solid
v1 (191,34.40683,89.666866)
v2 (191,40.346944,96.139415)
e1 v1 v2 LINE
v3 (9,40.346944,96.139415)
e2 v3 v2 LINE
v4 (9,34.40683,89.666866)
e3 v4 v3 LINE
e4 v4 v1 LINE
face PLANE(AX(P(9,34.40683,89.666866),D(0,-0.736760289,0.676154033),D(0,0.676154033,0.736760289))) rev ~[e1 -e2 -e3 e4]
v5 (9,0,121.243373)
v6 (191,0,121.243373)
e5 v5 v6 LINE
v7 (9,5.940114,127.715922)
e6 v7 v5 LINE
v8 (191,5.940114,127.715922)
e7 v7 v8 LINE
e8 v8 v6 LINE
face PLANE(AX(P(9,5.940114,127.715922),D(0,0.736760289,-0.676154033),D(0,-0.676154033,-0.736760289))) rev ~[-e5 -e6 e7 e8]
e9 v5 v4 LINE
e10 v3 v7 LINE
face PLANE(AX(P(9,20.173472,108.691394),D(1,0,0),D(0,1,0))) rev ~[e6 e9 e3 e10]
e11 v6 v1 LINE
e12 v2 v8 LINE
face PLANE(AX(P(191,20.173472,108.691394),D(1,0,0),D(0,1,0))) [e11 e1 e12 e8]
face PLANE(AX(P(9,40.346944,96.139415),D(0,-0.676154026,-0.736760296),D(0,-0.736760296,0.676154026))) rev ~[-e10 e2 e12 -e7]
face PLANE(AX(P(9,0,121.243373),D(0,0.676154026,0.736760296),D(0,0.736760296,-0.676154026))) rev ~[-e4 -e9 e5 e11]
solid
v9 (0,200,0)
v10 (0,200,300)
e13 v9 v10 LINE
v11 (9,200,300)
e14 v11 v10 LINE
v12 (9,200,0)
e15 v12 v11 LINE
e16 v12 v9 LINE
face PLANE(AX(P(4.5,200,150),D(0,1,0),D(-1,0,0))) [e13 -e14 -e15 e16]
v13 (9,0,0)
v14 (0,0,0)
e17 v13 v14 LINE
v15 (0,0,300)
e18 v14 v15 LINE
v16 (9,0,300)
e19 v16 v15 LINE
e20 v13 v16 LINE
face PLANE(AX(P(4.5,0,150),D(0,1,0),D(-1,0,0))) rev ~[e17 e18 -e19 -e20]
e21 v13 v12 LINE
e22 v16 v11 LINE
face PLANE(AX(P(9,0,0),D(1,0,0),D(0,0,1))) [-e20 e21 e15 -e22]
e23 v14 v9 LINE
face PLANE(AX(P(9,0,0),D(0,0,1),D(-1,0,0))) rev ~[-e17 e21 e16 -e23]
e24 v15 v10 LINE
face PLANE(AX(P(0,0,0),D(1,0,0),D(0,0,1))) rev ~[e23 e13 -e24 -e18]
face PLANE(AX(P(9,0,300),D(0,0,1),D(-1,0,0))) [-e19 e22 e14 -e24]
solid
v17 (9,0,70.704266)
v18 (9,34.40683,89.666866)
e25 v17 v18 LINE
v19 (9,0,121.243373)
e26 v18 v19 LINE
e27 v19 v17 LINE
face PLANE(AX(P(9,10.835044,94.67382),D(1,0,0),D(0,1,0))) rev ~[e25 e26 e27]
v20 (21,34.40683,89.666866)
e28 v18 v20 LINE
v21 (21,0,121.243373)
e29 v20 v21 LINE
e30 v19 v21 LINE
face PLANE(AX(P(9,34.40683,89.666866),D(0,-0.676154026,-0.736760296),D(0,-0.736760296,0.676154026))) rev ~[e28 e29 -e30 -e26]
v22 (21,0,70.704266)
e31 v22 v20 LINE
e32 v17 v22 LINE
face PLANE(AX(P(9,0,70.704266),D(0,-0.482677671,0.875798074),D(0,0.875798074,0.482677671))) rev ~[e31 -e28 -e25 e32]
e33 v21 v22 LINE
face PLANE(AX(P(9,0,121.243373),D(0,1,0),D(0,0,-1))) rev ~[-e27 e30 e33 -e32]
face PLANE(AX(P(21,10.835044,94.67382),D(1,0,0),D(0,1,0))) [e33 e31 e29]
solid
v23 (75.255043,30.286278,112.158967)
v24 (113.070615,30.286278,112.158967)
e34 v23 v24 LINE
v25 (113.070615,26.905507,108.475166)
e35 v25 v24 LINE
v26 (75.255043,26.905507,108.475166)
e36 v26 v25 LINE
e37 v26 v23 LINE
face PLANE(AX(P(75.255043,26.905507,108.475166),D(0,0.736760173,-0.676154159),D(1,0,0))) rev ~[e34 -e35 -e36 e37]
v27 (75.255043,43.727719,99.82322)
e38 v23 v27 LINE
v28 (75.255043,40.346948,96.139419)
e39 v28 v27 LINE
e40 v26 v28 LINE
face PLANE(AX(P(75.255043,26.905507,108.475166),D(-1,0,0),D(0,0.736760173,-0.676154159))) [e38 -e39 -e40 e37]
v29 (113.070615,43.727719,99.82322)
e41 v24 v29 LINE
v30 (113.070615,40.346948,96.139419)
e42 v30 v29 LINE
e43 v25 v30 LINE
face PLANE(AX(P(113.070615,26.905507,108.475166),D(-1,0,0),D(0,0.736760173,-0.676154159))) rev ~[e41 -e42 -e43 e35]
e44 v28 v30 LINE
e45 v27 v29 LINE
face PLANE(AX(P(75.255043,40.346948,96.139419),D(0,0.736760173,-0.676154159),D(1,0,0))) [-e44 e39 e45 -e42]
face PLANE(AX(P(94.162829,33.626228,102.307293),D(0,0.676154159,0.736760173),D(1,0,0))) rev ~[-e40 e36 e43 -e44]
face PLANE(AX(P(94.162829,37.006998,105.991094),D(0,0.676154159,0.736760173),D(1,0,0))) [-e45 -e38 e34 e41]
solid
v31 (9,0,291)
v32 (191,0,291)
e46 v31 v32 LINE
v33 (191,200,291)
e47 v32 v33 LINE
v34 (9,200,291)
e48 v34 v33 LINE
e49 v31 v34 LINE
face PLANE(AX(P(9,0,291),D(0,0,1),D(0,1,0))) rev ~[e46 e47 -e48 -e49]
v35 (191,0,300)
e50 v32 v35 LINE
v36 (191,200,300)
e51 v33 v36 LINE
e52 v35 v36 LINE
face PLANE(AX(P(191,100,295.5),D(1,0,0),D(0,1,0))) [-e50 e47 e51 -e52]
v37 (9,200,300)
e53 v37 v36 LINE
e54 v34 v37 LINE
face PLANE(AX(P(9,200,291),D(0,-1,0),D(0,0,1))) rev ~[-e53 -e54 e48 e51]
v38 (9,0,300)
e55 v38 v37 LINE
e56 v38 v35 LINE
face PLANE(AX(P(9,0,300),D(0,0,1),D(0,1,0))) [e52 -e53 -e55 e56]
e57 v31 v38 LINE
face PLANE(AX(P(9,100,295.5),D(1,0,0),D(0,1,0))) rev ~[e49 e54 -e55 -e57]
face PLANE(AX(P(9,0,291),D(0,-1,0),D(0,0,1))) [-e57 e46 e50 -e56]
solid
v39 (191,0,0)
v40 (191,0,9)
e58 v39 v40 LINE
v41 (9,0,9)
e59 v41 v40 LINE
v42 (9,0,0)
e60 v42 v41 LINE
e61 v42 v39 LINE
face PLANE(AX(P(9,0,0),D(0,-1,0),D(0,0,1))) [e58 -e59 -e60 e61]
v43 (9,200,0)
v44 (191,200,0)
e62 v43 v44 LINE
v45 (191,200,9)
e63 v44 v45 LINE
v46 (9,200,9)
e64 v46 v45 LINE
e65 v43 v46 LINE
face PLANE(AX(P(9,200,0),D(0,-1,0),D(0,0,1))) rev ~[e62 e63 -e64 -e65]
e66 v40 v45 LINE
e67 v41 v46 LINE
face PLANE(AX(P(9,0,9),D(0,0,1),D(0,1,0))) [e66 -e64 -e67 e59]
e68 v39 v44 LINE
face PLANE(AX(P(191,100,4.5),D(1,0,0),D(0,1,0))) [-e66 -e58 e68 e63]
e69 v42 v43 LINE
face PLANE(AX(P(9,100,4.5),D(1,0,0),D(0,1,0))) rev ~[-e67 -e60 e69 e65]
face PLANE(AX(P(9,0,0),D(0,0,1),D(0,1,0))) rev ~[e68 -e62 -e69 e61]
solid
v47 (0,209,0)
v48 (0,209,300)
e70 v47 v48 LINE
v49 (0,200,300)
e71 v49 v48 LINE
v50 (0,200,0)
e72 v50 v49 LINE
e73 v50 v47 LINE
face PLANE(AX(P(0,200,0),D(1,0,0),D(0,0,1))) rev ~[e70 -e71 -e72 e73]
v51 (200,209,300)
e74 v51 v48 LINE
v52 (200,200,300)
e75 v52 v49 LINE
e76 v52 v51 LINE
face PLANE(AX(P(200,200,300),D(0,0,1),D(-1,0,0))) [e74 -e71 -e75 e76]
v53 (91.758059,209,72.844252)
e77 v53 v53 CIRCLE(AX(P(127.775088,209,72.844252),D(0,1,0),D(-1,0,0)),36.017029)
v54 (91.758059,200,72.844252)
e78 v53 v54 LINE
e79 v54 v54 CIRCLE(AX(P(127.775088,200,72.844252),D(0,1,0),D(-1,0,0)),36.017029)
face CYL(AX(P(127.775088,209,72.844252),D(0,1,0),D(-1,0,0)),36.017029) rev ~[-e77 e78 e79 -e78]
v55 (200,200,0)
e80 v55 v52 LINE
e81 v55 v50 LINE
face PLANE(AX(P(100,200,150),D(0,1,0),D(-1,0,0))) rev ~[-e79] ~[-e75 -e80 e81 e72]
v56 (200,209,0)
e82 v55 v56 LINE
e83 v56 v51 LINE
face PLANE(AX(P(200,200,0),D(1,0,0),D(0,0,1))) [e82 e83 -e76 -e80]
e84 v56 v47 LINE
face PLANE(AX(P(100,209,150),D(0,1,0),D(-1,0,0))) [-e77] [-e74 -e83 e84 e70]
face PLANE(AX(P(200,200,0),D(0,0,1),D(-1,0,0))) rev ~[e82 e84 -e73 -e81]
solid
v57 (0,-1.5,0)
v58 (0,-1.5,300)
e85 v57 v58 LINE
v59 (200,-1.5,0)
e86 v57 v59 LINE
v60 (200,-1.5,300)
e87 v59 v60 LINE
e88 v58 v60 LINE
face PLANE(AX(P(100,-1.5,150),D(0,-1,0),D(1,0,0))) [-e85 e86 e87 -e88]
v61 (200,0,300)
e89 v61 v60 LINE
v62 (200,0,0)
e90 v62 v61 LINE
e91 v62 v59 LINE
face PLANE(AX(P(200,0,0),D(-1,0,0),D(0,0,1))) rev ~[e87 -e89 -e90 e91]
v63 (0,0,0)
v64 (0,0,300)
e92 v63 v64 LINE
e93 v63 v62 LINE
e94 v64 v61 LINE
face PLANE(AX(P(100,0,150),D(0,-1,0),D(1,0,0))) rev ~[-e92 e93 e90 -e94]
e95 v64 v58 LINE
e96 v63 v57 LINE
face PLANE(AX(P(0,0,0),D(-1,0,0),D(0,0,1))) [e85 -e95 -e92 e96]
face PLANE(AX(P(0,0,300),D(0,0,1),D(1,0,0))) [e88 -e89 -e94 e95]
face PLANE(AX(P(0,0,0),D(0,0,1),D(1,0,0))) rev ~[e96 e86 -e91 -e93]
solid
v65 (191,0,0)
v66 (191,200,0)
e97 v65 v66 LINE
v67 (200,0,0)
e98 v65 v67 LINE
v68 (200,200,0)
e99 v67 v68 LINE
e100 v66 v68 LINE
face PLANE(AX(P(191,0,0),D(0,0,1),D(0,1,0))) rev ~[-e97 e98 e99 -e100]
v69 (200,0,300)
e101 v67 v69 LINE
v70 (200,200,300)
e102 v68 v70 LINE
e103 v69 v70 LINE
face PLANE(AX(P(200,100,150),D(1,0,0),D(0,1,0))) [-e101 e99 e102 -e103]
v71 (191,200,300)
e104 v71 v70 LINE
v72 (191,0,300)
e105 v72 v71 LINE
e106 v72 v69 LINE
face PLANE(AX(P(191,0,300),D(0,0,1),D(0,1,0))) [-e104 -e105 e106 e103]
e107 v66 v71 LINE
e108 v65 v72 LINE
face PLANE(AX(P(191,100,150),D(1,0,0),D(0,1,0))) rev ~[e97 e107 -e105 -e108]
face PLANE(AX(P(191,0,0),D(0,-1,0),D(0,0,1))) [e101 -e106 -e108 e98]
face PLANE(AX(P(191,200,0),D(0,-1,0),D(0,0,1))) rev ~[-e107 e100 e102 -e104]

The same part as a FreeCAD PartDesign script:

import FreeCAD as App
import Part
import Sketcher
Q = App.Units.Quantity


def add_polygon(sketch, points):
    """Adds a closed chain of lines whose ends are joined by coincident constraints."""
    first, n = sketch.GeometryCount, len(points)
    for a, b in zip(points, points[1:] + points[:1]):
        sketch.addGeometry(Part.LineSegment(App.Vector(*a, 0), App.Vector(*b, 0)), False)
    for i in range(n):
        sketch.addConstraint(Sketcher.Constraint("Coincident", first + i, 2, first + (i + 1) % n, 1))

doc = App.newDocument("Part")
body = doc.addObject("PartDesign::Body", "Body")

# Sketch on XZ plane
sketch1 = body.newObject("Sketcher::SketchObject", "Sketch")
sketch1.AttachmentSupport = (doc.getObject("XZ_Plane"), [""])
sketch1.MapMode = "FlatFace"
add_polygon(sketch1, [(0, 300), (0, 0), (200, 0), (200, 300)])  # lines 0-3
sketch1.addConstraint(Sketcher.Constraint("Vertical", 0))
sketch1.addConstraint(Sketcher.Constraint("Horizontal", 1))
sketch1.addConstraint(Sketcher.Constraint("Vertical", 2))
sketch1.addConstraint(Sketcher.Constraint("Horizontal", 3))
sketch1.addConstraint(Sketcher.Constraint("Coincident", 0, 2, -1, 1))
sketch1.addConstraint(Sketcher.Constraint("DistanceX", 1, 1, 1, 2, Q("200 mm")))
sketch1.addConstraint(Sketcher.Constraint("DistanceY", 0, 2, 0, 1, Q("300 mm")))
pad1 = body.newObject("PartDesign::Pad", "Pad")
pad1.Profile = sketch1
pad1.Length = 1.5
body2 = doc.addObject("PartDesign::Body", "Body001")

# Sketch on XZ plane
sketch2 = body2.newObject("Sketcher::SketchObject", "Sketch001")
sketch2.AttachmentSupport = (doc.getObject("XZ_Plane001"), [""])
sketch2.MapMode = "FlatFace"
add_polygon(sketch2, [(9, 300), (9, 0), (0, 0), (0, 300)])  # lines 0-3
sketch2.addConstraint(Sketcher.Constraint("Vertical", 0))
sketch2.addConstraint(Sketcher.Constraint("Horizontal", 1))
sketch2.addConstraint(Sketcher.Constraint("Vertical", 2))
sketch2.addConstraint(Sketcher.Constraint("Horizontal", 3))
sketch2.addConstraint(Sketcher.Constraint("Coincident", 1, 2, -1, 1))
sketch2.addConstraint(Sketcher.Constraint("DistanceX", 1, 2, 1, 1, Q("9 mm")))
sketch2.addConstraint(Sketcher.Constraint("DistanceY", 0, 2, 0, 1, Q("300 mm")))
pad2 = body2.newObject("PartDesign::Pad", "Pad001")
pad2.Profile = sketch2
pad2.Length = 200
pad2.Reversed = True
body3 = doc.addObject("PartDesign::Body", "Body002")

# Sketch on YZ plane
sketch3 = body3.newObject("Sketcher::SketchObject", "Sketch002")
sketch3.AttachmentSupport = (doc.getObject("YZ_Plane002"), [""])
sketch3.MapMode = "FlatFace"
sketch3.AttachmentOffset = App.Placement(App.Vector(0, 0, 9), App.Rotation())
add_polygon(sketch3, [(34, 90), (0, 121), (0, 71)])  # lines 0-2
sketch3.addConstraint(Sketcher.Constraint("Vertical", 1))
sketch3.addConstraint(Sketcher.Constraint("PointOnObject", 0, 2, -2))
sketch3.addConstraint(Sketcher.Constraint("DistanceY", 1, 2, 2, 2, Q("18.9626 mm")))
sketch3.addConstraint(Sketcher.Constraint("Distance", 0, Q("46.700169 mm")))
sketch3.addConstraint(Sketcher.Constraint("Distance", 2, Q("39.286259 mm")))
sketch3.addConstraint(Sketcher.Constraint("DistanceY", -1, 1, 0, 2, Q("121.243373 mm")))
pad3 = body3.newObject("PartDesign::Pad", "Pad002")
pad3.Profile = sketch3
pad3.Length = 12
body4 = doc.addObject("PartDesign::Body", "Body003")

# Sketch on YZ plane
sketch4 = body4.newObject("Sketcher::SketchObject", "Sketch003")
sketch4.AttachmentSupport = (doc.getObject("YZ_Plane003"), [""])
sketch4.MapMode = "FlatFace"
sketch4.AttachmentOffset = App.Placement(App.Vector(0, 0, 9), App.Rotation())
add_polygon(sketch4, [(0, 121), (34, 90), (40, 96), (6, 128)])  # lines 0-3
sketch4.addConstraint(Sketcher.Constraint("PointOnObject", 3, 2, -2))
sketch4.addConstraint(Sketcher.Constraint("Perpendicular", 0, 1))
sketch4.addConstraint(Sketcher.Constraint("Perpendicular", 1, 2))
sketch4.addConstraint(Sketcher.Constraint("Perpendicular", 2, 3))
sketch4.addConstraint(Sketcher.Constraint("Distance", 0, Q("46.700169 mm")))
sketch4.addConstraint(Sketcher.Constraint("Distance", 1, Q("8.785149 mm")))
sketch4.addConstraint(Sketcher.Constraint("DistanceX", -1, 1, 0, 2, Q("34.40683 mm")))
sketch4.addConstraint(Sketcher.Constraint("DistanceY", -1, 1, 0, 2, Q("89.666866 mm")))
pad4 = body4.newObject("PartDesign::Pad", "Pad003")
pad4.Profile = sketch4
pad4.Length = 182
body5 = doc.addObject("PartDesign::Body", "Body004")

# Sketch on an angled plane
sketch5 = body5.newObject("Sketcher::SketchObject", "Sketch004")
sketch5.Placement = App.Placement(App.Vector(0, 66.33913, 72.285359), App.Rotation(App.Vector(1, 0, 0), App.Vector(0, 0.736760173, -0.676154159), App.Vector(0, 0.676154159, 0.736760173), "ZXY"))
add_polygon(sketch5, [(75, -35), (75, -54), (113, -54), (113, -35)])  # lines 0-3
sketch5.addConstraint(Sketcher.Constraint("Vertical", 0))
sketch5.addConstraint(Sketcher.Constraint("Horizontal", 1))
sketch5.addConstraint(Sketcher.Constraint("Vertical", 2))
sketch5.addConstraint(Sketcher.Constraint("Horizontal", 3))
sketch5.addConstraint(Sketcher.Constraint("DistanceX", 1, 1, 1, 2, Q("37.815571 mm")))
sketch5.addConstraint(Sketcher.Constraint("DistanceY", 0, 2, 0, 1, Q("18.243985 mm")))
sketch5.addConstraint(Sketcher.Constraint("DistanceY", 0, 2, -1, 1, Q("53.523011 mm")))
sketch5.addConstraint(Sketcher.Constraint("DistanceX", -1, 1, 0, 2, Q("75.255043 mm")))
pad5 = body5.newObject("PartDesign::Pad", "Pad004")
pad5.Profile = sketch5
pad5.Length = 5
body6 = doc.addObject("PartDesign::Body", "Body005")

# Sketch on YZ plane
sketch6 = body6.newObject("Sketcher::SketchObject", "Sketch005")
sketch6.AttachmentSupport = (doc.getObject("YZ_Plane005"), [""])
sketch6.MapMode = "FlatFace"
sketch6.AttachmentOffset = App.Placement(App.Vector(0, 0, 9), App.Rotation())
add_polygon(sketch6, [(0, 300), (0, 291), (200, 291), (200, 300)])  # lines 0-3
sketch6.addConstraint(Sketcher.Constraint("Vertical", 0))
sketch6.addConstraint(Sketcher.Constraint("Horizontal", 1))
sketch6.addConstraint(Sketcher.Constraint("Vertical", 2))
sketch6.addConstraint(Sketcher.Constraint("Horizontal", 3))
sketch6.addConstraint(Sketcher.Constraint("PointOnObject", 0, 2, -2))
sketch6.addConstraint(Sketcher.Constraint("DistanceX", 1, 1, 1, 2, Q("200 mm")))
sketch6.addConstraint(Sketcher.Constraint("DistanceY", 0, 2, 0, 1, Q("9 mm")))
sketch6.addConstraint(Sketcher.Constraint("DistanceY", -1, 1, 0, 2, Q("291 mm")))
pad6 = body6.newObject("PartDesign::Pad", "Pad005")
pad6.Profile = sketch6
pad6.Length = 182
body7 = doc.addObject("PartDesign::Body", "Body006")

# Sketch on YZ plane
sketch7 = body7.newObject("Sketcher::SketchObject", "Sketch006")
sketch7.AttachmentSupport = (doc.getObject("YZ_Plane006"), [""])
sketch7.MapMode = "FlatFace"
sketch7.AttachmentOffset = App.Placement(App.Vector(0, 0, 9), App.Rotation())
add_polygon(sketch7, [(0, 9), (0, 0), (200, 0), (200, 9)])  # lines 0-3
sketch7.addConstraint(Sketcher.Constraint("Vertical", 0))
sketch7.addConstraint(Sketcher.Constraint("Horizontal", 1))
sketch7.addConstraint(Sketcher.Constraint("Vertical", 2))
sketch7.addConstraint(Sketcher.Constraint("Horizontal", 3))
sketch7.addConstraint(Sketcher.Constraint("Coincident", 0, 2, -1, 1))
sketch7.addConstraint(Sketcher.Constraint("DistanceX", 1, 1, 1, 2, Q("200 mm")))
sketch7.addConstraint(Sketcher.Constraint("DistanceY", 0, 2, 0, 1, Q("9 mm")))
pad7 = body7.newObject("PartDesign::Pad", "Pad006")
pad7.Profile = sketch7
pad7.Length = 182
body8 = doc.addObject("PartDesign::Body", "Body007")

# Sketch on YZ plane
sketch8 = body8.newObject("Sketcher::SketchObject", "Sketch007")
sketch8.AttachmentSupport = (doc.getObject("YZ_Plane007"), [""])
sketch8.MapMode = "FlatFace"
sketch8.AttachmentOffset = App.Placement(App.Vector(0, 0, 191), App.Rotation())
add_polygon(sketch8, [(0, 300), (0, 0), (200, 0), (200, 300)])  # lines 0-3
sketch8.addConstraint(Sketcher.Constraint("Vertical", 0))
sketch8.addConstraint(Sketcher.Constraint("Horizontal", 1))
sketch8.addConstraint(Sketcher.Constraint("Vertical", 2))
sketch8.addConstraint(Sketcher.Constraint("Horizontal", 3))
sketch8.addConstraint(Sketcher.Constraint("Coincident", 0, 2, -1, 1))
sketch8.addConstraint(Sketcher.Constraint("DistanceX", 1, 1, 1, 2, Q("200 mm")))
sketch8.addConstraint(Sketcher.Constraint("DistanceY", 0, 2, 0, 1, Q("300 mm")))
pad8 = body8.newObject("PartDesign::Pad", "Pad007")
pad8.Profile = sketch8
pad8.Length = 9
body9 = doc.addObject("PartDesign::Body", "Body008")

# Sketch on XZ plane
sketch9 = body9.newObject("Sketcher::SketchObject", "Sketch008")
sketch9.AttachmentSupport = (doc.getObject("XZ_Plane008"), [""])
sketch9.MapMode = "FlatFace"
sketch9.AttachmentOffset = App.Placement(App.Vector(0, 0, -200), App.Rotation())
add_polygon(sketch9, [(200, 300), (200, 0), (0, 0), (0, 300)])  # lines 0-3
sketch9.addConstraint(Sketcher.Constraint("Vertical", 0))
sketch9.addConstraint(Sketcher.Constraint("Horizontal", 1))
sketch9.addConstraint(Sketcher.Constraint("Vertical", 2))
sketch9.addConstraint(Sketcher.Constraint("Horizontal", 3))
sketch9.addConstraint(Sketcher.Constraint("Coincident", 1, 2, -1, 1))
sketch9.addConstraint(Sketcher.Constraint("DistanceX", 1, 2, 1, 1, Q("200 mm")))
sketch9.addConstraint(Sketcher.Constraint("DistanceY", 0, 2, 0, 1, Q("300 mm")))
pad9 = body9.newObject("PartDesign::Pad", "Pad008")
pad9.Profile = sketch9
pad9.Length = 9
pad9.Reversed = True

# Sketch on XZ plane
sketch10 = body9.newObject("Sketcher::SketchObject", "Sketch009")
sketch10.AttachmentSupport = (doc.getObject("XZ_Plane008"), [""])
sketch10.MapMode = "FlatFace"
sketch10.AttachmentOffset = App.Placement(App.Vector(0, 0, -209), App.Rotation())
sketch10.addGeometry(Part.Circle(App.Vector(128, 73, 0), App.Vector(0, 0, 1), 36), False)
sketch10.addConstraint(Sketcher.Constraint("Diameter", 0, Q("72.034058 mm")))
sketch10.addConstraint(Sketcher.Constraint("DistanceY", -1, 1, 0, 3, Q("72.844252 mm")))
sketch10.addConstraint(Sketcher.Constraint("DistanceX", -1, 1, 0, 3, Q("127.775088 mm")))
pocket1 = body9.newObject("PartDesign::Pocket", "Pocket")
pocket1.Profile = sketch10
pocket1.Length = 9
pocket1.Reversed = True

doc.recompute()
